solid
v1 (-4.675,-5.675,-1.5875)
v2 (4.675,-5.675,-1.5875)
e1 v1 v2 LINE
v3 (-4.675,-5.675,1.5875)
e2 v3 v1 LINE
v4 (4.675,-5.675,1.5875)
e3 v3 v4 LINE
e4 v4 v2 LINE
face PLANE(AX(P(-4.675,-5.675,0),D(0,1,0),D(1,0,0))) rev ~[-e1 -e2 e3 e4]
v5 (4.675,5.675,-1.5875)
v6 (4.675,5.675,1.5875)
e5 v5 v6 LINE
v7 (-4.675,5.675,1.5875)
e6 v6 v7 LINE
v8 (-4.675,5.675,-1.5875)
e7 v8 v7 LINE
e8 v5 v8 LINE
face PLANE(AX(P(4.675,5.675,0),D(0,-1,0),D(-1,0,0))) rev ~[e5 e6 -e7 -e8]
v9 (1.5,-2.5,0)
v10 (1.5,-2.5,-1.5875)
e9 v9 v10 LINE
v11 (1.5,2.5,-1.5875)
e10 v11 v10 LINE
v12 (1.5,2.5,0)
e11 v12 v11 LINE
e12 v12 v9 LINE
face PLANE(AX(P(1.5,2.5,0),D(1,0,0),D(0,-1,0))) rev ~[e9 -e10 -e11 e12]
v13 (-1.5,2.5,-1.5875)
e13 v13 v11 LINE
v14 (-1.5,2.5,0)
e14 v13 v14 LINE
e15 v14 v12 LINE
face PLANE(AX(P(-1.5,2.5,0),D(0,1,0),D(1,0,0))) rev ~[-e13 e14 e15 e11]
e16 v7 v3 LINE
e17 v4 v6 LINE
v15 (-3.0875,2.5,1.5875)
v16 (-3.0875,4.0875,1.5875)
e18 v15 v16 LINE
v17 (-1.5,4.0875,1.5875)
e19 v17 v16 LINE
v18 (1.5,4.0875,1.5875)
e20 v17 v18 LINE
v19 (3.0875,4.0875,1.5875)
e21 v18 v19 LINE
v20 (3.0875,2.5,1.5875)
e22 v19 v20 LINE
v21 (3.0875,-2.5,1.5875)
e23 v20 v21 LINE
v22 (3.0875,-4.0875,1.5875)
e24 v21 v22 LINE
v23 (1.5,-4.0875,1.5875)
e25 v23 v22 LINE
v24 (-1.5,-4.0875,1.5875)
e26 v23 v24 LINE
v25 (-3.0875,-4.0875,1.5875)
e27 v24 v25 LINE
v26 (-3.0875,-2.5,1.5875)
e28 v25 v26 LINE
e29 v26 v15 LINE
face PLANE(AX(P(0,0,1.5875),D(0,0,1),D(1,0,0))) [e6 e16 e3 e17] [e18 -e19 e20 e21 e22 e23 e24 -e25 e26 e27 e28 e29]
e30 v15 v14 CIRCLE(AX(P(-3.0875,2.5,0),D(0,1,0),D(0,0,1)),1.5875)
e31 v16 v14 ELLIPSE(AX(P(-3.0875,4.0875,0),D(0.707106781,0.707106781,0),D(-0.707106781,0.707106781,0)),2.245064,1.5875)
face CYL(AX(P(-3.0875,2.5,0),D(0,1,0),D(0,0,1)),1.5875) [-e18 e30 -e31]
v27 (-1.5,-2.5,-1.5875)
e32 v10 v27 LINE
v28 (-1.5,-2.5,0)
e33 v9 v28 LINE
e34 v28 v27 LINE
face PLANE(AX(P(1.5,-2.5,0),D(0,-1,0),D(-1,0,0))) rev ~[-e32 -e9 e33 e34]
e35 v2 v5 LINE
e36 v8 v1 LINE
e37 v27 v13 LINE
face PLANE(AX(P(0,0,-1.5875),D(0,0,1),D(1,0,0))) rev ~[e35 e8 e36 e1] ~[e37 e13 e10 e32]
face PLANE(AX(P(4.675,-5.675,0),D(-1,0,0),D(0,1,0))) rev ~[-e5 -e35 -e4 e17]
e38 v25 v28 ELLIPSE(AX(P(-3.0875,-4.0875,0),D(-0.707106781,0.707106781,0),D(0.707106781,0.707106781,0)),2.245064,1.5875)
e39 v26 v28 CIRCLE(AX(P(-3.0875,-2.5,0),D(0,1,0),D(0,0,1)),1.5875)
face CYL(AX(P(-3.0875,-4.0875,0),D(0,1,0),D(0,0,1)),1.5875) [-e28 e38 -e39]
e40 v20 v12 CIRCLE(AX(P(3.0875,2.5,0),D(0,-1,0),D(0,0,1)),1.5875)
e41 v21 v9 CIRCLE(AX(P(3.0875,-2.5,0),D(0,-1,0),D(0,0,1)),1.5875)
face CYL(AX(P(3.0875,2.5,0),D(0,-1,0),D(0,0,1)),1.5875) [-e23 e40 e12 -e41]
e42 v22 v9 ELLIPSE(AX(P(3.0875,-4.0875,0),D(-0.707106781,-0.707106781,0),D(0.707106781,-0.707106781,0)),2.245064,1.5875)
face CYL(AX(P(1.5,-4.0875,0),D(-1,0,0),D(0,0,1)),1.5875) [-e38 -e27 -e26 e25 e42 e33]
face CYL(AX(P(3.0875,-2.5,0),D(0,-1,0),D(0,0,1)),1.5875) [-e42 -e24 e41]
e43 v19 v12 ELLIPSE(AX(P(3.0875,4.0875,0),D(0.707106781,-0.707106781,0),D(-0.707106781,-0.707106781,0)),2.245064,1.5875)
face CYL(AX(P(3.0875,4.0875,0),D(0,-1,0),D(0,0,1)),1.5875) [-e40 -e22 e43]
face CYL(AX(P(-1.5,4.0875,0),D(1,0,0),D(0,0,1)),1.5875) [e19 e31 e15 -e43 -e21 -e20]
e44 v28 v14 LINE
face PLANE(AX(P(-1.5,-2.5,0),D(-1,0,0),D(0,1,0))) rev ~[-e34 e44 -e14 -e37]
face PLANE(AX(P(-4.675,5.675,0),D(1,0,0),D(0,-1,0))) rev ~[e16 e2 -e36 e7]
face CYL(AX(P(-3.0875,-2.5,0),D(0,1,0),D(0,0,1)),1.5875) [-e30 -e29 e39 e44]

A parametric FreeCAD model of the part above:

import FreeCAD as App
import Part
import Sketcher


def edges_at(feature, points):
    """Names of the edges that pass closest to the given points."""
    edges = feature.Shape.Edges
    near = lambda p: min(range(len(edges)), key=lambda i: edges[i].distToShape(Part.Vertex(*p))[0])
    return sorted({f"Edge{near(p) + 1}" for p in points})

doc = App.newDocument("Part")
body = doc.addObject("PartDesign::Body", "Body")

sketch1 = doc.addObject("Sketcher::SketchObject", "Sketch")
body.addObject(sketch1)
sketch1.AttachmentSupport = (doc.XY_Plane, [""])
sketch1.MapMode = "FlatFace"
sketch1.addGeometry([
    Part.LineSegment(App.Vector(4.7, -5.7, 0), App.Vector(4.7, 5.7, 0)),
    Part.LineSegment(App.Vector(4.7, 5.7, 0), App.Vector(-4.7, 5.7, 0)),
    Part.LineSegment(App.Vector(-4.7, 5.7, 0), App.Vector(-4.7, -5.7, 0)),
    Part.LineSegment(App.Vector(-4.7, -5.7, 0), App.Vector(4.7, -5.7, 0)),
    Part.LineSegment(App.Vector(-1.5, -2.5, 0), App.Vector(-1.5, 2.5, 0)),
    Part.LineSegment(App.Vector(-1.5, 2.5, 0), App.Vector(1.5, 2.5, 0)),
    Part.LineSegment(App.Vector(1.5, 2.5, 0), App.Vector(1.5, -2.5, 0)),
    Part.LineSegment(App.Vector(1.5, -2.5, 0), App.Vector(-1.5, -2.5, 0)),
], False)
sketch1.addConstraint([
    Sketcher.Constraint("Coincident", 0, 2, 1, 1),
    Sketcher.Constraint("Coincident", 1, 2, 2, 1),
    Sketcher.Constraint("Coincident", 2, 2, 3, 1),
    Sketcher.Constraint("Coincident", 3, 2, 0, 1),
    Sketcher.Constraint("Coincident", 4, 2, 5, 1),
    Sketcher.Constraint("Coincident", 5, 2, 6, 1),
    Sketcher.Constraint("Coincident", 6, 2, 7, 1),
    Sketcher.Constraint("Coincident", 7, 2, 4, 1),
    Sketcher.Constraint("Vertical", 0),
    Sketcher.Constraint("Horizontal", 1),
    Sketcher.Constraint("Vertical", 2),
    Sketcher.Constraint("Horizontal", 3),
    Sketcher.Constraint("Vertical", 4),
    Sketcher.Constraint("Horizontal", 5),
    Sketcher.Constraint("Vertical", 6),
    Sketcher.Constraint("Horizontal", 7),
    Sketcher.Constraint("Symmetric", 0, 2, 2, 2, -1, 1),
    Sketcher.Constraint("Symmetric", 4, 2, 6, 2, -1, 1),
    Sketcher.Constraint("DistanceX", 5, 1, 5, 2, 3.0),
    Sketcher.Constraint("DistanceY", 4, 1, 4, 2, 5.0),
    Sketcher.Constraint("DistanceX", 1, 2, 4, 2, 3.175),
    Sketcher.Constraint("DistanceY", 4, 2, 1, 2, 3.175),
])
pad1 = doc.addObject("PartDesign::Pad", "Pad")
body.addObject(pad1)
pad1.Profile = sketch1
pad1.Length = 3.175
pad1.Midplane = True
doc.recompute()

fillet = doc.addObject("PartDesign::Fillet", "Fillet")
body.addObject(fillet)
fillet.Base = (pad1, edges_at(pad1, [(0, 2.5, 1.587), (0, -2.5, 1.587)]))
fillet.Radius = 1.5875
doc.recompute()

fillet2 = doc.addObject("PartDesign::Fillet", "Fillet001")
body.addObject(fillet2)
fillet2.Base = (fillet, edges_at(fillet, [(-1.5, 0, 1.587), (1.5, 0, 1.587)]))
fillet2.Radius = 1.5875

doc.recompute()
